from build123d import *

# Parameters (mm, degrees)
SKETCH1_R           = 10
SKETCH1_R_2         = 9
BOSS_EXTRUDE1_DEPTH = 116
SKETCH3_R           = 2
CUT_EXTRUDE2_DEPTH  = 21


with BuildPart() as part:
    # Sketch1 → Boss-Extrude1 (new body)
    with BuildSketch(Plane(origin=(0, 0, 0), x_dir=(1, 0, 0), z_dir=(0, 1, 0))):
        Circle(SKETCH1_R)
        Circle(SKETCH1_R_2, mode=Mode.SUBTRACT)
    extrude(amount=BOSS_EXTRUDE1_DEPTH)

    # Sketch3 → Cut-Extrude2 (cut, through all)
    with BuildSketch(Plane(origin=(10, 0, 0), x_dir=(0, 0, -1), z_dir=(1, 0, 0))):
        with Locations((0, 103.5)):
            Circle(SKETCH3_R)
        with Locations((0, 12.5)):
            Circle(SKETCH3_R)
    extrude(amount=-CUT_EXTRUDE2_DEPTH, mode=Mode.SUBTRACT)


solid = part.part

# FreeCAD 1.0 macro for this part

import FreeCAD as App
import Part
import Sketcher

V = App.Vector
Q = App.Units.Quantity

doc = App.newDocument("Part")
body = doc.addObject("PartDesign::Body", "Body")

# Sketch on XZ plane
sketch1 = doc.addObject("Sketcher::SketchObject", "Sketch")
body.addObject(sketch1)
sketch1.AttachmentSupport = (doc.XZ_Plane, [""])
sketch1.MapMode = "FlatFace"
sketch1.addGeometry(Part.Circle(V(0, 0, 0), V(0, 0, 1), 10), False)
sketch1.addGeometry(Part.Circle(V(0, 0, 0), V(0, 0, 1), 9), False)
sketch1.addConstraint(Sketcher.Constraint("Coincident", 0, 3, -1, 1))
sketch1.addConstraint(Sketcher.Constraint("Coincident", 1, 3, -1, 1))
sketch1.addConstraint(Sketcher.Constraint("Diameter", 0, Q("20 mm")))
sketch1.addConstraint(Sketcher.Constraint("Diameter", 1, Q("18 mm")))
pad1 = doc.addObject("PartDesign::Pad", "Pad")
body.addObject(pad1)
pad1.Profile = sketch1
pad1.Length = 116
pad1.Reversed = True

# Sketch on YZ plane
sketch2 = doc.addObject("Sketcher::SketchObject", "Sketch001")
body.addObject(sketch2)
sketch2.AttachmentSupport = (doc.YZ_Plane, [""])
sketch2.MapMode = "FlatFace"
sketch2.AttachmentOffset = App.Placement(V(0, 0, 10), App.Rotation())
sketch2.addGeometry(Part.Circle(V(103.5, 0, 0), V(0, 0, 1), 2), False)
sketch2.addGeometry(Part.Circle(V(12.5, 0, 0), V(0, 0, 1), 2), False)
sketch2.addConstraint(Sketcher.Constraint("Equal", 0, 1))
sketch2.addConstraint(Sketcher.Constraint("PointOnObject", 0, 3, -1))
sketch2.addConstraint(Sketcher.Constraint("PointOnObject", 1, 3, -1))
sketch2.addConstraint(Sketcher.Constraint("Diameter", 0, Q("4 mm")))
sketch2.addConstraint(Sketcher.Constraint("DistanceX", 1, 3, 0, 3, Q("91 mm")))
sketch2.addConstraint(Sketcher.Constraint("DistanceX", -1, 1, 0, 3, Q("103.5 mm")))
pocket1 = doc.addObject("PartDesign::Pocket", "Pocket")
body.addObject(pocket1)
pocket1.Profile = sketch2
pocket1.Type = "ThroughAll"

doc.recompute()
